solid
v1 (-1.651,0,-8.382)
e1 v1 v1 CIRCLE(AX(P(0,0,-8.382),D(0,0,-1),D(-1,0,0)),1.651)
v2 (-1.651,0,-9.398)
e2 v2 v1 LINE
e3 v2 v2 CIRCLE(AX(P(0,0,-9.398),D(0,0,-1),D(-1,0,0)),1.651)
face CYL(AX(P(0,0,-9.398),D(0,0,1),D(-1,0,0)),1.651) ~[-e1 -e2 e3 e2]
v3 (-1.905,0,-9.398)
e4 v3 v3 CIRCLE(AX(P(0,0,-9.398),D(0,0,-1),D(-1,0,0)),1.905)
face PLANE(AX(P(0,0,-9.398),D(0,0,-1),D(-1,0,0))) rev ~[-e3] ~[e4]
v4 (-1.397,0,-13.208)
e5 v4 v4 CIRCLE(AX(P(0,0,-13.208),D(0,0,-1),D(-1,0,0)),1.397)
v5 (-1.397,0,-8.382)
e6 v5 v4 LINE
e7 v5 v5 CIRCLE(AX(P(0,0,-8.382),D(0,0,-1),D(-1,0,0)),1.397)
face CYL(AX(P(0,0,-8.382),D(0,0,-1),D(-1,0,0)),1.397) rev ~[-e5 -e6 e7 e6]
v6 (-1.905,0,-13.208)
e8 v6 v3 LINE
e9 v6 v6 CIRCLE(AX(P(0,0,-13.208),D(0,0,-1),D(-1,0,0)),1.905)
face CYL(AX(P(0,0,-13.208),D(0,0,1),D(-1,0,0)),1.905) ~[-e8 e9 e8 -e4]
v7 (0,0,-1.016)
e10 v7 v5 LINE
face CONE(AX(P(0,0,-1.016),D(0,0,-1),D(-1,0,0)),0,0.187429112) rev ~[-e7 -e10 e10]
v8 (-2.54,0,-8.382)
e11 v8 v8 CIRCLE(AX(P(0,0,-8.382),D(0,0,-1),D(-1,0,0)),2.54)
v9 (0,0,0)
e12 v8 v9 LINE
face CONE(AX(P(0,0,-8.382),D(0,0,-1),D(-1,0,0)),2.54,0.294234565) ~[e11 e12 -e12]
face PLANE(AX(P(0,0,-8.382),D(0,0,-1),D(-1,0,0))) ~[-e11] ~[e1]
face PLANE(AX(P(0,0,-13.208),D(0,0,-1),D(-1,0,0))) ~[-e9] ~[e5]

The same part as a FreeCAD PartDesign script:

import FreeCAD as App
import Part
import Sketcher
from FreeCAD import Vector
Q = App.Units.Quantity


def add_polygon(sketch, points):
    """Adds a closed chain of lines whose ends are joined by coincident constraints."""
    first, n = sketch.GeometryCount, len(points)
    for a, b in zip(points, points[1:] + points[:1]):
        sketch.addGeometry(Part.LineSegment(App.Vector(*a, 0), App.Vector(*b, 0)), False)
    for i in range(n):
        sketch.addConstraint(Sketcher.Constraint("Coincident", first + i, 2, first + (i + 1) % n, 1))

doc = App.newDocument("Part")
body = doc.addObject("PartDesign::Body", "Body")

sketch1 = doc.addObject("Sketcher::SketchObject", "Sketch")
body.addObject(sketch1)
sketch1.AttachmentSupport = (doc.XZ_Plane, [""])
sketch1.MapMode = "FlatFace"
add_polygon(sketch1, [(-2.54, -8.38), (0, 0), (0, -1.02), (-1.4, -8.38), (-1.4, -13.21), (-1.91, -13.21), (-1.91, -9.4), (-1.65, -9.4), (-1.65, -8.38)])
sketch1.addConstraint(Sketcher.Constraint("Vertical", 1))
sketch1.addConstraint(Sketcher.Constraint("Vertical", 3))
sketch1.addConstraint(Sketcher.Constraint("Horizontal", 4))
sketch1.addConstraint(Sketcher.Constraint("Vertical", 5))
sketch1.addConstraint(Sketcher.Constraint("Horizontal", 6))
sketch1.addConstraint(Sketcher.Constraint("Vertical", 7))
sketch1.addConstraint(Sketcher.Constraint("Horizontal", 8))
sketch1.addConstraint(Sketcher.Constraint("Coincident", 0, 2, -1, 1))
sketch1.addConstraint(Sketcher.Constraint("Horizontal", 2, 2, 7, 2))
sketch1.addConstraint(Sketcher.Constraint("Equal", 1, 7))
sketch1.addConstraint(Sketcher.Constraint("DistanceX", 6, 1, 6, 2, Q("0.01 in")))
sketch1.addConstraint(Sketcher.Constraint("DistanceY", 1, 2, 1, 1, Q("0.04 in")))
sketch1.addConstraint(Sketcher.Constraint("DistanceY", 5, 1, 5, 2, Q("0.15 in")))
sketch1.addConstraint(Sketcher.Constraint("DistanceX", 8, 2, -1, 1, Q("0.1 in")))
sketch1.addConstraint(Sketcher.Constraint("DistanceY", 2, 2, -1, 1, Q("0.33 in")))
sketch1.addConstraint(Sketcher.Constraint("DistanceX", 6, 2, 2, 2, Q("0.01 in")))
sketch1.addConstraint(Sketcher.Constraint("DistanceX", 4, 2, -1, 1, Q("0.075 in")))
revolution = doc.addObject("PartDesign::Revolution", "Revolution")
body.addObject(revolution)
revolution.Profile = sketch1
revolution.ReferenceAxis = (sketch1, ["V_Axis"])
revolution.Angle = 360

doc.recompute()
